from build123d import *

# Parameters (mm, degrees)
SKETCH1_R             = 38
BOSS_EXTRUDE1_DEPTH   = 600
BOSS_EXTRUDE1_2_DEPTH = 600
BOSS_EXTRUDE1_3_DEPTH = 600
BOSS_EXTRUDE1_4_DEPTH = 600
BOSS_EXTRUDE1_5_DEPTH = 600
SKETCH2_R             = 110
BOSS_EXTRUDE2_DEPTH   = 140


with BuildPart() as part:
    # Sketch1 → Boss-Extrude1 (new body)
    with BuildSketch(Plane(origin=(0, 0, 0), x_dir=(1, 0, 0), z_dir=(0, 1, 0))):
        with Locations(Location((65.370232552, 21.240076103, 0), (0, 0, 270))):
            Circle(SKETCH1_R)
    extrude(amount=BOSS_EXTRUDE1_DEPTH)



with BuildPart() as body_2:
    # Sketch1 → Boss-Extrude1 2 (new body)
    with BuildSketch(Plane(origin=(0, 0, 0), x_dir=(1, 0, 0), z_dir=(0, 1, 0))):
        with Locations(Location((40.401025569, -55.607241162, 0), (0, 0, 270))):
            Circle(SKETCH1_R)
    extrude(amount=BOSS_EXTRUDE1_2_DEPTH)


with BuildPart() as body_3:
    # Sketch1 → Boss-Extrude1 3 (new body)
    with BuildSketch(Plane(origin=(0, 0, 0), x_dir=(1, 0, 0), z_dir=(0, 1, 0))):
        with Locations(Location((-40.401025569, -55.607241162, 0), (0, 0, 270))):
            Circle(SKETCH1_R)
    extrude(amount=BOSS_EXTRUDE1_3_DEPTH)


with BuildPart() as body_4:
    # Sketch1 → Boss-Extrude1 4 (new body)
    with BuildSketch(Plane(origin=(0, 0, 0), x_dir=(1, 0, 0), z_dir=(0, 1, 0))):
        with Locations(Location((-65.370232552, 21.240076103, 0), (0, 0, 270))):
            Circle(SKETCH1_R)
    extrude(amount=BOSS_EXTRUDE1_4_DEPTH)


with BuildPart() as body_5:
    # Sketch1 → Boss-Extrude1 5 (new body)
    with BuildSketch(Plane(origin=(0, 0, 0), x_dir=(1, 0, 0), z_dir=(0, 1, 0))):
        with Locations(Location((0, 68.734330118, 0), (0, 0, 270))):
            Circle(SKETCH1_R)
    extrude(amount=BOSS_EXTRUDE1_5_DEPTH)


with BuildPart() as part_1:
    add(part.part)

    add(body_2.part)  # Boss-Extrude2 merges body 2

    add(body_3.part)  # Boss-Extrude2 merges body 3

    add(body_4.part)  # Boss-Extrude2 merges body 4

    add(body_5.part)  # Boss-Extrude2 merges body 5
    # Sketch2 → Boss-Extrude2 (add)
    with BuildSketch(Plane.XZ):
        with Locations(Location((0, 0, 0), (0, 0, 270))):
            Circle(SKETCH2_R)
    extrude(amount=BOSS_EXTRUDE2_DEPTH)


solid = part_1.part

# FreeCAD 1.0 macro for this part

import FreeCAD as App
import Part
import Sketcher
from FreeCAD import Vector

doc = App.newDocument("Part")
body = doc.addObject("PartDesign::Body", "Body")

# Sketch on XZ plane
sketch1 = doc.addObject("Sketcher::SketchObject", "Sketch")
body.addObject(sketch1)
sketch1.AttachmentSupport = (doc.XZ_Plane, [""])
sketch1.MapMode = "FlatFace"
sketch1.addGeometry(Part.Circle(Vector(65, -21, 0), Vector(0, 0, 1), 38), False)
sketch1.addConstraint(Sketcher.Constraint("Diameter", 0, 76.0))
sketch1.addConstraint(Sketcher.Constraint("DistanceX", -1, 1, 0, 3, 65.370233))
sketch1.addConstraint(Sketcher.Constraint("DistanceY", 0, 3, -1, 1, 21.240076))
pad1 = doc.addObject("PartDesign::Pad", "Pad")
body.addObject(pad1)
pad1.Profile = sketch1
pad1.Length = 600
pad1.Reversed = True
body2 = doc.addObject("PartDesign::Body", "Body001")

# Sketch on XZ plane
sketch2 = doc.addObject("Sketcher::SketchObject", "Sketch001")
body2.addObject(sketch2)
sketch2.AttachmentSupport = (doc.getObject("XZ_Plane001"), [""])
sketch2.MapMode = "FlatFace"
sketch2.addGeometry(Part.Circle(Vector(40, 56, 0), Vector(0, 0, 1), 38), False)
sketch2.addConstraint(Sketcher.Constraint("Diameter", 0, 76.0))
sketch2.addConstraint(Sketcher.Constraint("DistanceY", -1, 1, 0, 3, 55.607241))
sketch2.addConstraint(Sketcher.Constraint("DistanceX", -1, 1, 0, 3, 40.401026))
pad2 = doc.addObject("PartDesign::Pad", "Pad001")
body2.addObject(pad2)
pad2.Profile = sketch2
pad2.Length = 600
pad2.Reversed = True
body3 = doc.addObject("PartDesign::Body", "Body002")

# Sketch on XZ plane
sketch3 = doc.addObject("Sketcher::SketchObject", "Sketch002")
body3.addObject(sketch3)
sketch3.AttachmentSupport = (doc.getObject("XZ_Plane002"), [""])
sketch3.MapMode = "FlatFace"
sketch3.addGeometry(Part.Circle(Vector(-40, 56, 0), Vector(0, 0, 1), 38), False)
sketch3.addConstraint(Sketcher.Constraint("Diameter", 0, 76.0))
sketch3.addConstraint(Sketcher.Constraint("DistanceY", -1, 1, 0, 3, 55.607241))
sketch3.addConstraint(Sketcher.Constraint("DistanceX", 0, 3, -1, 1, 40.401026))
pad3 = doc.addObject("PartDesign::Pad", "Pad002")
body3.addObject(pad3)
pad3.Profile = sketch3
pad3.Length = 600
pad3.Reversed = True
body4 = doc.addObject("PartDesign::Body", "Body003")

# Sketch on XZ plane
sketch4 = doc.addObject("Sketcher::SketchObject", "Sketch003")
body4.addObject(sketch4)
sketch4.AttachmentSupport = (doc.getObject("XZ_Plane003"), [""])
sketch4.MapMode = "FlatFace"
sketch4.addGeometry(Part.Circle(Vector(-65, -21, 0), Vector(0, 0, 1), 38), False)
sketch4.addConstraint(Sketcher.Constraint("Diameter", 0, 76.0))
sketch4.addConstraint(Sketcher.Constraint("DistanceX", 0, 3, -1, 1, 65.370233))
sketch4.addConstraint(Sketcher.Constraint("DistanceY", 0, 3, -1, 1, 21.240076))
pad4 = doc.addObject("PartDesign::Pad", "Pad003")
body4.addObject(pad4)
pad4.Profile = sketch4
pad4.Length = 600
pad4.Reversed = True
body5 = doc.addObject("PartDesign::Body", "Body004")

# Sketch on XZ plane
sketch5 = doc.addObject("Sketcher::SketchObject", "Sketch004")
body5.addObject(sketch5)
sketch5.AttachmentSupport = (doc.getObject("XZ_Plane004"), [""])
sketch5.MapMode = "FlatFace"
sketch5.addGeometry(Part.Circle(Vector(0, -69, 0), Vector(0, 0, 1), 38), False)
sketch5.addConstraint(Sketcher.Constraint("PointOnObject", 0, 3, -2))
sketch5.addConstraint(Sketcher.Constraint("Diameter", 0, 76.0))
sketch5.addConstraint(Sketcher.Constraint("DistanceY", 0, 3, -1, 1, 68.73433))
pad5 = doc.addObject("PartDesign::Pad", "Pad004")
body5.addObject(pad5)
pad5.Profile = sketch5
pad5.Length = 600
pad5.Reversed = True
body.AllowCompound = True
doc.recompute()

boolean = doc.addObject("PartDesign::Boolean", "Boolean")
body.addObject(boolean)
boolean.Type = "Fuse"
boolean.addObjects([body2])
doc.recompute()

boolean2 = doc.addObject("PartDesign::Boolean", "Boolean001")
body.addObject(boolean2)
boolean2.Type = "Fuse"
boolean2.addObjects([body3])
doc.recompute()

boolean3 = doc.addObject("PartDesign::Boolean", "Boolean002")
body.addObject(boolean3)
boolean3.Type = "Fuse"
boolean3.addObjects([body4])
doc.recompute()

boolean4 = doc.addObject("PartDesign::Boolean", "Boolean003")
body.addObject(boolean4)
boolean4.Type = "Fuse"
boolean4.addObjects([body5])

# Sketch on XZ plane
sketch6 = doc.addObject("Sketcher::SketchObject", "Sketch005")
body.addObject(sketch6)
sketch6.AttachmentSupport = (doc.XZ_Plane, [""])
sketch6.MapMode = "FlatFace"
sketch6.addGeometry(Part.Circle(Vector(0, 0, 0), Vector(0, 0, 1), 110), False)
sketch6.addConstraint(Sketcher.Constraint("Coincident", 0, 3, -1, 1))
sketch6.addConstraint(Sketcher.Constraint("Diameter", 0, 220.0))
pad6 = doc.addObject("PartDesign::Pad", "Pad005")
body.addObject(pad6)
pad6.Profile = sketch6
pad6.Length = 140

doc.recompute()
